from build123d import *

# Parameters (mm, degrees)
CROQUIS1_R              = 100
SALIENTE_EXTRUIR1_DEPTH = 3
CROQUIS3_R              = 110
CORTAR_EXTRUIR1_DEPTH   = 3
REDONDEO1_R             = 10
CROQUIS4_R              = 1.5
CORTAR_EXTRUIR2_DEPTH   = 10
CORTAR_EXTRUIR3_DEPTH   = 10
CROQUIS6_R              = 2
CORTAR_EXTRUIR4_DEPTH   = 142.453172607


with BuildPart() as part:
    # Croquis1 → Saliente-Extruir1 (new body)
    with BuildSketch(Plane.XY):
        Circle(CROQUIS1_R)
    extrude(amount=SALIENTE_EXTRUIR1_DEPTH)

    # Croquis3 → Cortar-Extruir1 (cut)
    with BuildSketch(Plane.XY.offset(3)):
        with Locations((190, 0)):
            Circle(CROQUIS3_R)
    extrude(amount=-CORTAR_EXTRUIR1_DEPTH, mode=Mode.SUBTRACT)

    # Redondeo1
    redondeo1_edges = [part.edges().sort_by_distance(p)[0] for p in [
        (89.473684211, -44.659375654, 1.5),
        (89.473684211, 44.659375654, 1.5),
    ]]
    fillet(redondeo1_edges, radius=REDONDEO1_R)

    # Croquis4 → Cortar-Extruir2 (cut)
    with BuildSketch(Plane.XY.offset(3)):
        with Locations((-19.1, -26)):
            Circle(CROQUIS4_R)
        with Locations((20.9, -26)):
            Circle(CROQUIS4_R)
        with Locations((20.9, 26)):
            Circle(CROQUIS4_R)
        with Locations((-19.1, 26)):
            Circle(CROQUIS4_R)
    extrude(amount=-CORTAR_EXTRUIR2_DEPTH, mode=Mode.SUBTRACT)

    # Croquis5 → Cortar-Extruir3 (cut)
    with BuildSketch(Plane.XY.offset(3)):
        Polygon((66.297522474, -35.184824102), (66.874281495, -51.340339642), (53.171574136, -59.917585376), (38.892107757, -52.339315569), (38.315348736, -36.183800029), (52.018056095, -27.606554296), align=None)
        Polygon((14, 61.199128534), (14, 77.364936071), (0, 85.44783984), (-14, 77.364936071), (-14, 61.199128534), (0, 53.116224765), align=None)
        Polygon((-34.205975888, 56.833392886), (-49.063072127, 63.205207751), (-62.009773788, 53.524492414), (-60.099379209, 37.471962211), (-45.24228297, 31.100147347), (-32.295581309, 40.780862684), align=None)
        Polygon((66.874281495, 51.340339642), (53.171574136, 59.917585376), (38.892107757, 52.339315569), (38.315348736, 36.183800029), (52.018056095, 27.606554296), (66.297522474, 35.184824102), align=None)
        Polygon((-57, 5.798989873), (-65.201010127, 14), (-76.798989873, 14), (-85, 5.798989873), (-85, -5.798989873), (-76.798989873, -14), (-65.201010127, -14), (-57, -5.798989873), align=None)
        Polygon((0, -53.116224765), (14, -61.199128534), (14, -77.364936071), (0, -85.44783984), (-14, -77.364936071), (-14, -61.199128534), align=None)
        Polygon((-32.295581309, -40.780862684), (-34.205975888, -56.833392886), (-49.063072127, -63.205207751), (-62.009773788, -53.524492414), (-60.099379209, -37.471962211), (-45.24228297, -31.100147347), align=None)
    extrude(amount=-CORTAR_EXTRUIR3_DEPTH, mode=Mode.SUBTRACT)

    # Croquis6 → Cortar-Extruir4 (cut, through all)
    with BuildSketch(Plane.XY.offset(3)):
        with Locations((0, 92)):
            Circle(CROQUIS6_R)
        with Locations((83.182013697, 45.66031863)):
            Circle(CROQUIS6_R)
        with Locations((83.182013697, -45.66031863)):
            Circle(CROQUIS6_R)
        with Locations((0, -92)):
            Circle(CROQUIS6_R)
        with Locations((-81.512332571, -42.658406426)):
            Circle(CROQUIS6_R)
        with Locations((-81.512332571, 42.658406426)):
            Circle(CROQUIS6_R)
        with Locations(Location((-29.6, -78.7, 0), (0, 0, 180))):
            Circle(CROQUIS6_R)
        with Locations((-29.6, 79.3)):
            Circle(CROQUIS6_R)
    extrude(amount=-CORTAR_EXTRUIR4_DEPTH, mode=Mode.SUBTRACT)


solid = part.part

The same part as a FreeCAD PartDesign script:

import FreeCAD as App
import Part
import Sketcher

V = App.Vector
Q = App.Units.Quantity


def edges_at(feature, points):
    """Names of the edges that pass closest to the given points."""
    edges = feature.Shape.Edges
    near = lambda p: min(range(len(edges)), key=lambda i: edges[i].distToShape(Part.Vertex(*p))[0])
    return sorted({f"Edge{near(p) + 1}" for p in points})

doc = App.newDocument("Part")
body = doc.addObject("PartDesign::Body", "Body")

# Sketch on XY plane
sketch1 = body.newObject("Sketcher::SketchObject", "Sketch")
sketch1.AttachmentSupport = (doc.getObject("XY_Plane"), [""])
sketch1.MapMode = "FlatFace"
sketch1.addGeometry(Part.Circle(V(0, 0, 0), V(0, 0, 1), 100), False)
sketch1.addConstraint([
    Sketcher.Constraint("Coincident", 0, 3, -1, 1),
    Sketcher.Constraint("Diameter", 0, Q("200 mm")),
])
pad1 = body.newObject("PartDesign::Pad", "Pad")
pad1.Profile = sketch1
pad1.Length = 3

# Sketch on XY plane
sketch2 = body.newObject("Sketcher::SketchObject", "Sketch001")
sketch2.AttachmentSupport = (doc.getObject("XY_Plane"), [""])
sketch2.MapMode = "FlatFace"
sketch2.AttachmentOffset = App.Placement(V(0, 0, 3), App.Rotation())
sketch2.addGeometry(Part.Circle(V(190, 0, 0), V(0, 0, 1), 110), False)
sketch2.addConstraint([
    Sketcher.Constraint("PointOnObject", 0, 3, -1),
    Sketcher.Constraint("Diameter", 0, Q("220 mm")),
    Sketcher.Constraint("DistanceX", -1, 1, 0, 3, Q("190 mm")),
])
pocket1 = body.newObject("PartDesign::Pocket", "Pocket")
pocket1.Profile = sketch2
pocket1.Length = 3
doc.recompute()

fillet = body.newObject("PartDesign::Fillet", "Fillet")
fillet.Base = (pocket1, edges_at(pocket1, [(89.474, -44.659, 1.5), (89.474, 44.659, 1.5)]))
fillet.Radius = 10

# Sketch on XY plane
sketch3 = body.newObject("Sketcher::SketchObject", "Sketch002")
sketch3.AttachmentSupport = (doc.getObject("XY_Plane"), [""])
sketch3.MapMode = "FlatFace"
sketch3.AttachmentOffset = App.Placement(V(0, 0, 3), App.Rotation())
sketch3.addGeometry([
    Part.Circle(V(-19.1, -26, 0), V(0, 0, 1), 1.5),
    Part.Circle(V(20.9, -26, 0), V(0, 0, 1), 1.5),
    Part.Circle(V(20.9, 26, 0), V(0, 0, 1), 1.5),
    Part.Circle(V(-19.1, 26, 0), V(0, 0, 1), 1.5),
], False)
sketch3.addConstraint([
    Sketcher.Constraint("Equal", 0, 1),
    Sketcher.Constraint("Equal", 1, 2),
    Sketcher.Constraint("Equal", 2, 3),
    Sketcher.Constraint("Symmetric", 1, 3, 2, 3, -1),
    Sketcher.Constraint("Symmetric", 0, 3, 3, 3, -1),
    Sketcher.Constraint("Horizontal", 0, 3, 1, 3),
    Sketcher.Constraint("Diameter", 0, Q("3 mm")),
    Sketcher.Constraint("DistanceY", 0, 3, -1, 1, Q("26 mm")),
    Sketcher.Constraint("DistanceX", 0, 3, 1, 3, Q("40 mm")),
    Sketcher.Constraint("DistanceX", 0, 3, -1, 1, Q("19.1 mm")),
])
pocket2 = body.newObject("PartDesign::Pocket", "Pocket001")
pocket2.Profile = sketch3
pocket2.Length = 10

# Sketch on XY plane
sketch4 = body.newObject("Sketcher::SketchObject", "Sketch003")
sketch4.AttachmentSupport = (doc.getObject("XY_Plane"), [""])
sketch4.MapMode = "FlatFace"
sketch4.AttachmentOffset = App.Placement(V(0, 0, 3), App.Rotation())
sketch4.addGeometry([
    Part.LineSegment(V(67, -51, 0), V(66, -35, 0)),  # 0
    Part.LineSegment(V(66, -35, 0), V(52, -28, 0)),  # 1
    Part.LineSegment(V(52, -28, 0), V(38, -36, 0)),  # 2
    Part.LineSegment(V(38, -36, 0), V(39, -52, 0)),  # 3
    Part.LineSegment(V(39, -52, 0), V(53, -60, 0)),  # 4
    Part.LineSegment(V(53, -60, 0), V(67, -51, 0)),  # 5
    Part.LineSegment(V(14, 61, 0), V(14, 77, 0)),  # 6
    Part.LineSegment(V(14, 77, 0), V(0, 85, 0)),  # 7
    Part.LineSegment(V(0, 85, 0), V(-14, 77, 0)),  # 8
    Part.LineSegment(V(-14, 77, 0), V(-14, 61, 0)),  # 9
    Part.LineSegment(V(-14, 61, 0), V(0, 53, 0)),  # 10
    Part.LineSegment(V(0, 53, 0), V(14, 61, 0)),  # 11
    Part.LineSegment(V(-34, 57, 0), V(-49, 63, 0)),  # 12
    Part.LineSegment(V(-49, 63, 0), V(-62, 54, 0)),  # 13
    Part.LineSegment(V(-62, 54, 0), V(-60, 37, 0)),  # 14
    Part.LineSegment(V(-60, 37, 0), V(-45, 31, 0)),  # 15
    Part.LineSegment(V(-45, 31, 0), V(-32, 41, 0)),  # 16
    Part.LineSegment(V(-32, 41, 0), V(-34, 57, 0)),  # 17
    Part.LineSegment(V(67, 51, 0), V(53, 60, 0)),  # 18
    Part.LineSegment(V(53, 60, 0), V(39, 52, 0)),  # 19
    Part.LineSegment(V(39, 52, 0), V(38, 36, 0)),  # 20
    Part.LineSegment(V(38, 36, 0), V(52, 28, 0)),  # 21
    Part.LineSegment(V(52, 28, 0), V(66, 35, 0)),  # 22
    Part.LineSegment(V(66, 35, 0), V(67, 51, 0)),  # 23
    Part.LineSegment(V(-57, 6, 0), V(-65, 14, 0)),  # 24
    Part.LineSegment(V(-65, 14, 0), V(-77, 14, 0)),  # 25
    Part.LineSegment(V(-77, 14, 0), V(-85, 6, 0)),  # 26
    Part.LineSegment(V(-85, 6, 0), V(-85, -6, 0)),  # 27
    Part.LineSegment(V(-85, -6, 0), V(-77, -14, 0)),  # 28
    Part.LineSegment(V(-77, -14, 0), V(-65, -14, 0)),  # 29
    Part.LineSegment(V(-65, -14, 0), V(-57, -6, 0)),  # 30
    Part.LineSegment(V(-57, -6, 0), V(-57, 6, 0)),  # 31
    Part.LineSegment(V(14, -61, 0), V(0, -53, 0)),  # 32
    Part.LineSegment(V(0, -53, 0), V(-14, -61, 0)),  # 33
    Part.LineSegment(V(-14, -61, 0), V(-14, -77, 0)),  # 34
    Part.LineSegment(V(-14, -77, 0), V(0, -85, 0)),  # 35
    Part.LineSegment(V(0, -85, 0), V(14, -77, 0)),  # 36
    Part.LineSegment(V(14, -77, 0), V(14, -61, 0)),  # 37
    Part.LineSegment(V(-34, -57, 0), V(-32, -41, 0)),  # 38
    Part.LineSegment(V(-32, -41, 0), V(-45, -31, 0)),  # 39
    Part.LineSegment(V(-45, -31, 0), V(-60, -37, 0)),  # 40
    Part.LineSegment(V(-60, -37, 0), V(-62, -54, 0)),  # 41
    Part.LineSegment(V(-62, -54, 0), V(-49, -63, 0)),  # 42
    Part.LineSegment(V(-49, -63, 0), V(-34, -57, 0)),  # 43
], False)
sketch4.addConstraint([
    Sketcher.Constraint("Coincident", 0, 2, 1, 1),
    Sketcher.Constraint("Coincident", 1, 2, 2, 1),
    Sketcher.Constraint("Coincident", 2, 2, 3, 1),
    Sketcher.Constraint("Coincident", 3, 2, 4, 1),
    Sketcher.Constraint("Coincident", 4, 2, 5, 1),
    Sketcher.Constraint("Coincident", 5, 2, 0, 1),
    Sketcher.Constraint("Coincident", 6, 2, 7, 1),
    Sketcher.Constraint("Coincident", 7, 2, 8, 1),
    Sketcher.Constraint("Coincident", 8, 2, 9, 1),
    Sketcher.Constraint("Coincident", 9, 2, 10, 1),
    Sketcher.Constraint("Coincident", 10, 2, 11, 1),
    Sketcher.Constraint("Coincident", 11, 2, 6, 1),
    Sketcher.Constraint("Coincident", 12, 2, 13, 1),
    Sketcher.Constraint("Coincident", 13, 2, 14, 1),
    Sketcher.Constraint("Coincident", 14, 2, 15, 1),
    Sketcher.Constraint("Coincident", 15, 2, 16, 1),
    Sketcher.Constraint("Coincident", 16, 2, 17, 1),
    Sketcher.Constraint("Coincident", 17, 2, 12, 1),
    Sketcher.Constraint("Coincident", 18, 2, 19, 1),
    Sketcher.Constraint("Coincident", 19, 2, 20, 1),
    Sketcher.Constraint("Coincident", 20, 2, 21, 1),
    Sketcher.Constraint("Coincident", 21, 2, 22, 1),
    Sketcher.Constraint("Coincident", 22, 2, 23, 1),
    Sketcher.Constraint("Coincident", 23, 2, 18, 1),
    Sketcher.Constraint("Coincident", 24, 2, 25, 1),
    Sketcher.Constraint("Coincident", 25, 2, 26, 1),
    Sketcher.Constraint("Coincident", 26, 2, 27, 1),
    Sketcher.Constraint("Coincident", 27, 2, 28, 1),
    Sketcher.Constraint("Coincident", 28, 2, 29, 1),
    Sketcher.Constraint("Coincident", 29, 2, 30, 1),
    Sketcher.Constraint("Coincident", 30, 2, 31, 1),
    Sketcher.Constraint("Coincident", 31, 2, 24, 1),
    Sketcher.Constraint("Coincident", 32, 2, 33, 1),
    Sketcher.Constraint("Coincident", 33, 2, 34, 1),
    Sketcher.Constraint("Coincident", 34, 2, 35, 1),
    Sketcher.Constraint("Coincident", 35, 2, 36, 1),
    Sketcher.Constraint("Coincident", 36, 2, 37, 1),
    Sketcher.Constraint("Coincident", 37, 2, 32, 1),
    Sketcher.Constraint("Coincident", 38, 2, 39, 1),
    Sketcher.Constraint("Coincident", 39, 2, 40, 1),
    Sketcher.Constraint("Coincident", 40, 2, 41, 1),
    Sketcher.Constraint("Coincident", 41, 2, 42, 1),
    Sketcher.Constraint("Coincident", 42, 2, 43, 1),
    Sketcher.Constraint("Coincident", 43, 2, 38, 1),
    Sketcher.Constraint("Vertical", 6),
    Sketcher.Constraint("Vertical", 9),
    Sketcher.Constraint("Horizontal", 25),
    Sketcher.Constraint("Vertical", 27),
    Sketcher.Constraint("Horizontal", 29),
    Sketcher.Constraint("Vertical", 31),
    Sketcher.Constraint("Vertical", 34),
    Sketcher.Constraint("Vertical", 37),
    Sketcher.Constraint("Symmetric", 10, 2, 32, 2, -1, 1),
    Sketcher.Constraint("Symmetric", 11, 2, 33, 2, -1, 1),
    Sketcher.Constraint("Symmetric", 7, 2, 35, 2, -1, 1),
    Sketcher.Constraint("Symmetric", 8, 2, 36, 2, -1, 1),
    Sketcher.Constraint("Symmetric", 6, 2, 8, 2, -2),
    Sketcher.Constraint("Symmetric", 4, 2, 18, 2, -1),
    Sketcher.Constraint("Symmetric", 3, 2, 19, 2, -1),
    Sketcher.Constraint("Symmetric", 2, 2, 20, 2, -1),
    Sketcher.Constraint("Symmetric", 1, 2, 21, 2, -1),
    Sketcher.Constraint("Symmetric", 0, 2, 22, 2, -1),
    Sketcher.Constraint("Symmetric", 5, 2, 23, 2, -1),
    Sketcher.Constraint("Symmetric", 25, 2, 28, 2, -1),
    Sketcher.Constraint("Symmetric", 16, 2, 38, 2, -1),
    Sketcher.Constraint("Symmetric", 15, 2, 39, 2, -1),
    Sketcher.Constraint("Symmetric", 14, 2, 40, 2, -1),
    Sketcher.Constraint("Symmetric", 13, 2, 41, 2, -1),
    Sketcher.Constraint("Symmetric", 12, 2, 42, 2, -1),
    Sketcher.Constraint("Symmetric", 17, 2, 43, 2, -1),
    Sketcher.Constraint("PointOnObject", 7, 2, -2),
    Sketcher.Constraint("PointOnObject", 10, 2, -2),
    Sketcher.Constraint("Parallel", 0, 3),
    Sketcher.Constraint("Parallel", 1, 4),
    Sketcher.Constraint("Parallel", 2, 5),
    Sketcher.Constraint("Parallel", 7, 10),
    Sketcher.Constraint("Parallel", 8, 11),
    Sketcher.Constraint("Parallel", 12, 15),
    Sketcher.Constraint("Parallel", 13, 16),
    Sketcher.Constraint("Parallel", 14, 17),
    Sketcher.Constraint("Perpendicular", 24, 26),
    Sketcher.Constraint("Perpendicular", 26, 28),
    Sketcher.Constraint("Perpendicular", 28, 30),
    Sketcher.Constraint("Parallel", 10, 32),
    Sketcher.Constraint("Parallel", 32, 35),
    Sketcher.Constraint("Horizontal", 27, 2, 30, 2),
    Sketcher.Constraint("Horizontal", 26, 2, 31, 2),
    Sketcher.Constraint("Vertical", 24, 2, 29, 2),
    Sketcher.Constraint("Equal", 29, 27),
    Sketcher.Constraint("Equal", 0, 1),
    Sketcher.Constraint("Equal", 1, 2),
    Sketcher.Constraint("Equal", 2, 3),
    Sketcher.Constraint("Equal", 5, 7),
    Sketcher.Constraint("Equal", 11, 12),
    Sketcher.Constraint("Equal", 12, 13),
    Sketcher.Constraint("Equal", 13, 14),
    Sketcher.Constraint("Equal", 14, 15),
    Sketcher.Constraint("Angle", 7, Q("150 deg")),
    Sketcher.Constraint("DistanceX", -1, 1, 6, 2, Q("14 mm")),
    Sketcher.Constraint("DistanceY", -1, 1, 24, 2, Q("14 mm")),
    Sketcher.Constraint("DistanceX", 26, 2, -1, 1, Q("85 mm")),
    Sketcher.Constraint("DistanceX", 25, 2, 25, 1, Q("11.59798 mm")),
    Sketcher.Constraint("DistanceY", 2, 2, -1, 1, Q("36.1838 mm")),
    Sketcher.Constraint("DistanceX", 13, 2, 12, 2, Q("12.946702 mm")),
    Sketcher.Constraint("DistanceY", 14, 2, 16, 2, Q("3.3089 mm")),
    Sketcher.Constraint("DistanceY", 6, 1, 6, 2, Q("16.165808 mm")),
    Sketcher.Constraint("DistanceX", -1, 1, 2, 2, Q("38.315349 mm")),
    Sketcher.Constraint("DistanceX", -1, 1, 5, 2, Q("66.874281 mm")),
    Sketcher.Constraint("DistanceY", 5, 2, -1, 1, Q("51.34034 mm")),
    Sketcher.Constraint("DistanceY", -1, 1, 7, 2, Q("85.44784 mm")),
    Sketcher.Constraint("DistanceX", 14, 2, -1, 1, Q("60.099379 mm")),
    Sketcher.Constraint("DistanceY", 0, 2, 1, 2, Q("7.57827 mm")),
    Sketcher.Constraint("DistanceY", 9, 2, 12, 2, Q("2.006079 mm")),
    Sketcher.Constraint("DistanceY", 14, 2, 13, 2, Q("16.05253 mm")),
])
pocket3 = body.newObject("PartDesign::Pocket", "Pocket002")
pocket3.Profile = sketch4
pocket3.Length = 10

# Sketch on XY plane
sketch5 = body.newObject("Sketcher::SketchObject", "Sketch004")
sketch5.AttachmentSupport = (doc.getObject("XY_Plane"), [""])
sketch5.MapMode = "FlatFace"
sketch5.AttachmentOffset = App.Placement(V(0, 0, 3), App.Rotation())
sketch5.addGeometry([
    Part.Circle(V(0, 92, 0), V(0, 0, 1), 2),  # 0
    Part.Circle(V(83.2, 45.7, 0), V(0, 0, 1), 2),  # 1
    Part.Circle(V(83.2, -45.7, 0), V(0, 0, 1), 2),  # 2
    Part.Circle(V(0, -92, 0), V(0, 0, 1), 2),  # 3
    Part.Circle(V(-81.5, -42.7, 0), V(0, 0, 1), 2),  # 4
    Part.Circle(V(-81.5, 42.7, 0), V(0, 0, 1), 2),  # 5
    Part.Circle(V(-29.6, -78.7, 0), V(0, 0, 1), 2),  # 6
    Part.Circle(V(-29.6, 79.3, 0), V(0, 0, 1), 2),  # 7
], False)
sketch5.addConstraint([
    Sketcher.Constraint("Equal", 0, 1),
    Sketcher.Constraint("Equal", 1, 2),
    Sketcher.Constraint("Equal", 2, 3),
    Sketcher.Constraint("Equal", 3, 4),
    Sketcher.Constraint("Equal", 4, 5),
    Sketcher.Constraint("Equal", 5, 6),
    Sketcher.Constraint("Equal", 6, 7),
    Sketcher.Constraint("Symmetric", 0, 3, 3, 3, -1, 1),
    Sketcher.Constraint("Symmetric", 1, 3, 2, 3, -1),
    Sketcher.Constraint("Symmetric", 4, 3, 5, 3, -1),
    Sketcher.Constraint("PointOnObject", 0, 3, -2),
    Sketcher.Constraint("Vertical", 6, 3, 7, 3),
    Sketcher.Constraint("Diameter", 0, Q("4 mm")),
    Sketcher.Constraint("DistanceY", -1, 1, 0, 3, Q("92 mm")),
    Sketcher.Constraint("DistanceY", 6, 3, 7, 3, Q("158 mm")),
    Sketcher.Constraint("DistanceX", 6, 3, -1, 1, Q("29.6 mm")),
    Sketcher.Constraint("DistanceY", 6, 3, -1, 1, Q("78.7 mm")),
    Sketcher.Constraint("DistanceY", -1, 1, 1, 3, Q("45.660319 mm")),
    Sketcher.Constraint("DistanceX", -1, 1, 1, 3, Q("83.182014 mm")),
    Sketcher.Constraint("DistanceX", 4, 3, -1, 1, Q("81.512333 mm")),
    Sketcher.Constraint("DistanceY", 4, 3, -1, 1, Q("42.658406 mm")),
])
pocket4 = body.newObject("PartDesign::Pocket", "Pocket003")
pocket4.Profile = sketch5
pocket4.Type = "ThroughAll"

doc.recompute()
